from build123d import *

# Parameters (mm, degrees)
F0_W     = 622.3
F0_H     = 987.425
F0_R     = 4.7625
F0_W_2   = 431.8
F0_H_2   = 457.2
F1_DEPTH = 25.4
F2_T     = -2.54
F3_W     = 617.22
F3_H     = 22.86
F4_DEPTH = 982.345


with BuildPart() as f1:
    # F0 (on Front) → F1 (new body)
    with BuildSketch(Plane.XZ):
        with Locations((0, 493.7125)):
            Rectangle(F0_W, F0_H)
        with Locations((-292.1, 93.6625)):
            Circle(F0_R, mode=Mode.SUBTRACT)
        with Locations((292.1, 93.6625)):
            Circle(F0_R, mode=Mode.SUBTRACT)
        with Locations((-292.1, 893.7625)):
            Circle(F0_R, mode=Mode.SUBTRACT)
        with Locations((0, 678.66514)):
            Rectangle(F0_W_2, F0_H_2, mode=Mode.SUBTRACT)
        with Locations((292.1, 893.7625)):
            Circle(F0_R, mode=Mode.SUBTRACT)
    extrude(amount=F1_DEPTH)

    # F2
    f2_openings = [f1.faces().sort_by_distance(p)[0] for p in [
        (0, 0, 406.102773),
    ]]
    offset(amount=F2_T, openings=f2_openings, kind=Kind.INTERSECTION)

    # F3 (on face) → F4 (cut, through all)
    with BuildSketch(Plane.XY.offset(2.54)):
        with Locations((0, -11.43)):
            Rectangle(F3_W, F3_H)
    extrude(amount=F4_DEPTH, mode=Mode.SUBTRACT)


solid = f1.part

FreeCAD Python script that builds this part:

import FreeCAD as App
import Part
import Sketcher

V = App.Vector
Q = App.Units.Quantity


def faces_at(feature, points):
    """Names of the faces that lie closest to the given points."""
    faces = feature.Shape.Faces
    near = lambda p: min(range(len(faces)), key=lambda i: faces[i].distToShape(Part.Vertex(*p))[0])
    return sorted({f"Face{near(p) + 1}" for p in points})


def add_polygon(sketch, points):
    """Adds a closed chain of lines whose ends are joined by coincident constraints."""
    first, n = sketch.GeometryCount, len(points)
    for a, b in zip(points, points[1:] + points[:1]):
        sketch.addGeometry(Part.LineSegment(App.Vector(*a, 0), App.Vector(*b, 0)), False)
    for i in range(n):
        sketch.addConstraint(Sketcher.Constraint("Coincident", first + i, 2, first + (i + 1) % n, 1))

doc = App.newDocument("Part")
params = doc.addObject("Spreadsheet::Sheet", "Params")
for row, (alias, value) in enumerate([
    ("sketch1_width", "17 in"),
    ("sketch1_height", "18 in"),
    ("sketch1_diameter", "0.375 in"),
    ("sketch1_width2", "24.5 in"),
    ("sketch1_height2", "38.875 in"),
    ("pad1_length", "1 in"),
    ("thickness_wall", "0.1 in"),
    ("sketch2_width", "24.3 in"),
    ("sketch2_height", "0.9 in"),
    ("pocket1_length", "38.675 in"),
], start=1):
    params.set(f"A{row}", alias)
    params.set(f"B{row}", "=" + value)
    params.setAlias(f"B{row}", alias)

body = doc.addObject("PartDesign::Body", "Body")

sketch1 = body.newObject("Sketcher::SketchObject", "Sketch")
sketch1.AttachmentSupport = (doc.getObject("XZ_Plane"), [""])
sketch1.MapMode = "FlatFace"
add_polygon(sketch1, [(-311.1, 987.4), (-311.1, 0), (311.1, 0), (311.1, 987.4)])
sketch1.addGeometry(Part.Circle(V(-292.1, 93.7, 0), V(0, 0, 1), 4.8), False)
sketch1.addGeometry(Part.Circle(V(292.1, 93.7, 0), V(0, 0, 1), 4.8), False)
sketch1.addGeometry(Part.Circle(V(-292.1, 893.8, 0), V(0, 0, 1), 4.8), False)
add_polygon(sketch1, [(215.9, 450.1), (-215.9, 450.1), (-215.9, 907.3), (215.9, 907.3)])
sketch1.addGeometry(Part.Circle(V(292.1, 893.8, 0), V(0, 0, 1), 4.8), False)
sketch1.addConstraint(Sketcher.Constraint("Vertical", 0))
sketch1.addConstraint(Sketcher.Constraint("Horizontal", 1))
sketch1.addConstraint(Sketcher.Constraint("Vertical", 2))
sketch1.addConstraint(Sketcher.Constraint("Horizontal", 3))
sketch1.addConstraint(Sketcher.Constraint("Horizontal", 7))
sketch1.addConstraint(Sketcher.Constraint("Vertical", 8))
sketch1.addConstraint(Sketcher.Constraint("Horizontal", 9))
sketch1.addConstraint(Sketcher.Constraint("Vertical", 10))
sketch1.addConstraint(Sketcher.Constraint("Equal", 4, 5))
sketch1.addConstraint(Sketcher.Constraint("Equal", 5, 6))
sketch1.addConstraint(Sketcher.Constraint("Equal", 6, 11))
sketch1.addConstraint(Sketcher.Constraint("Symmetric", 0, 2, 1, 2, -1, 1))
sketch1.addConstraint(Sketcher.Constraint("Symmetric", 4, 3, 5, 3, -2))
sketch1.addConstraint(Sketcher.Constraint("Symmetric", 6, 3, 11, 3, -2))
sketch1.addConstraint(Sketcher.Constraint("Vertical", 4, 3, 6, 3))
sketch1.addConstraint(Sketcher.Constraint("DistanceX", 7, 2, 7, 1, Q("17 in")))
sketch1.addConstraint(Sketcher.Constraint("DistanceY", 8, 1, 8, 2, Q("18 in")))
sketch1.addConstraint(Sketcher.Constraint("Diameter", 4, Q("0.375 in")))
sketch1.addConstraint(Sketcher.Constraint("DistanceX", 1, 1, 1, 2, Q("24.5 in")))
sketch1.addConstraint(Sketcher.Constraint("DistanceX", 4, 3, 5, 3, Q("23 in")))
sketch1.addConstraint(Sketcher.Constraint("DistanceX", 4, 3, 7, 2, Q("3 in")))
sketch1.addConstraint(Sketcher.Constraint("DistanceY", 4, 3, 6, 3, Q("31.5 in")))
sketch1.addConstraint(Sketcher.Constraint("DistanceY", 0, 2, 0, 1, Q("38.875 in")))
sketch1.addConstraint(Sketcher.Constraint("DistanceY", -1, 1, 4, 3, Q("3.6875 in")))
sketch1.addConstraint(Sketcher.Constraint("DistanceY", -1, 1, 7, 2, Q("17.7191 in")))
sketch1.setExpression("Constraints[23]", "Params.sketch1_width")
sketch1.setExpression("Constraints[24]", "Params.sketch1_height")
sketch1.setExpression("Constraints[25]", "Params.sketch1_diameter")
sketch1.setExpression("Constraints[26]", "Params.sketch1_width2")
sketch1.setExpression("Constraints[30]", "Params.sketch1_height2")
pad1 = body.newObject("PartDesign::Pad", "Pad")
pad1.Profile = sketch1
pad1.setExpression("Length", "Params.pad1_length")
doc.recompute()

thickness = body.newObject("PartDesign::Thickness", "Thickness")
thickness.Base = (pad1, faces_at(pad1, [(-124.46, 0, 296.228)]))
thickness.setExpression("Value", "Params.thickness_wall")
thickness.Reversed = True
thickness.Join = "Intersection"

sketch2 = body.newObject("Sketcher::SketchObject", "Sketch001")
sketch2.AttachmentSupport = (doc.getObject("XY_Plane"), [""])
sketch2.MapMode = "FlatFace"
sketch2.AttachmentOffset = App.Placement(V(0, 0, 0.1 * 25.4), App.Rotation())
add_polygon(sketch2, [(-309, 0), (-309, -23), (309, -23), (309, 0)])
sketch2.addConstraint(Sketcher.Constraint("Vertical", 0))
sketch2.addConstraint(Sketcher.Constraint("Horizontal", 1))
sketch2.addConstraint(Sketcher.Constraint("Vertical", 2))
sketch2.addConstraint(Sketcher.Constraint("Horizontal", 3))
sketch2.addConstraint(Sketcher.Constraint("Symmetric", 2, 2, 3, 2, -1, 1))
sketch2.addConstraint(Sketcher.Constraint("DistanceX", 1, 1, 1, 2, Q("24.3 in")))
sketch2.addConstraint(Sketcher.Constraint("DistanceY", 0, 2, 0, 1, Q("0.9 in")))
sketch2.setExpression("Constraints[9]", "Params.sketch2_width")
sketch2.setExpression("Constraints[10]", "Params.sketch2_height")
pocket1 = body.newObject("PartDesign::Pocket", "Pocket")
pocket1.Profile = sketch2
pocket1.setExpression("Length", "Params.pocket1_length")
pocket1.Reversed = True

doc.recompute()
